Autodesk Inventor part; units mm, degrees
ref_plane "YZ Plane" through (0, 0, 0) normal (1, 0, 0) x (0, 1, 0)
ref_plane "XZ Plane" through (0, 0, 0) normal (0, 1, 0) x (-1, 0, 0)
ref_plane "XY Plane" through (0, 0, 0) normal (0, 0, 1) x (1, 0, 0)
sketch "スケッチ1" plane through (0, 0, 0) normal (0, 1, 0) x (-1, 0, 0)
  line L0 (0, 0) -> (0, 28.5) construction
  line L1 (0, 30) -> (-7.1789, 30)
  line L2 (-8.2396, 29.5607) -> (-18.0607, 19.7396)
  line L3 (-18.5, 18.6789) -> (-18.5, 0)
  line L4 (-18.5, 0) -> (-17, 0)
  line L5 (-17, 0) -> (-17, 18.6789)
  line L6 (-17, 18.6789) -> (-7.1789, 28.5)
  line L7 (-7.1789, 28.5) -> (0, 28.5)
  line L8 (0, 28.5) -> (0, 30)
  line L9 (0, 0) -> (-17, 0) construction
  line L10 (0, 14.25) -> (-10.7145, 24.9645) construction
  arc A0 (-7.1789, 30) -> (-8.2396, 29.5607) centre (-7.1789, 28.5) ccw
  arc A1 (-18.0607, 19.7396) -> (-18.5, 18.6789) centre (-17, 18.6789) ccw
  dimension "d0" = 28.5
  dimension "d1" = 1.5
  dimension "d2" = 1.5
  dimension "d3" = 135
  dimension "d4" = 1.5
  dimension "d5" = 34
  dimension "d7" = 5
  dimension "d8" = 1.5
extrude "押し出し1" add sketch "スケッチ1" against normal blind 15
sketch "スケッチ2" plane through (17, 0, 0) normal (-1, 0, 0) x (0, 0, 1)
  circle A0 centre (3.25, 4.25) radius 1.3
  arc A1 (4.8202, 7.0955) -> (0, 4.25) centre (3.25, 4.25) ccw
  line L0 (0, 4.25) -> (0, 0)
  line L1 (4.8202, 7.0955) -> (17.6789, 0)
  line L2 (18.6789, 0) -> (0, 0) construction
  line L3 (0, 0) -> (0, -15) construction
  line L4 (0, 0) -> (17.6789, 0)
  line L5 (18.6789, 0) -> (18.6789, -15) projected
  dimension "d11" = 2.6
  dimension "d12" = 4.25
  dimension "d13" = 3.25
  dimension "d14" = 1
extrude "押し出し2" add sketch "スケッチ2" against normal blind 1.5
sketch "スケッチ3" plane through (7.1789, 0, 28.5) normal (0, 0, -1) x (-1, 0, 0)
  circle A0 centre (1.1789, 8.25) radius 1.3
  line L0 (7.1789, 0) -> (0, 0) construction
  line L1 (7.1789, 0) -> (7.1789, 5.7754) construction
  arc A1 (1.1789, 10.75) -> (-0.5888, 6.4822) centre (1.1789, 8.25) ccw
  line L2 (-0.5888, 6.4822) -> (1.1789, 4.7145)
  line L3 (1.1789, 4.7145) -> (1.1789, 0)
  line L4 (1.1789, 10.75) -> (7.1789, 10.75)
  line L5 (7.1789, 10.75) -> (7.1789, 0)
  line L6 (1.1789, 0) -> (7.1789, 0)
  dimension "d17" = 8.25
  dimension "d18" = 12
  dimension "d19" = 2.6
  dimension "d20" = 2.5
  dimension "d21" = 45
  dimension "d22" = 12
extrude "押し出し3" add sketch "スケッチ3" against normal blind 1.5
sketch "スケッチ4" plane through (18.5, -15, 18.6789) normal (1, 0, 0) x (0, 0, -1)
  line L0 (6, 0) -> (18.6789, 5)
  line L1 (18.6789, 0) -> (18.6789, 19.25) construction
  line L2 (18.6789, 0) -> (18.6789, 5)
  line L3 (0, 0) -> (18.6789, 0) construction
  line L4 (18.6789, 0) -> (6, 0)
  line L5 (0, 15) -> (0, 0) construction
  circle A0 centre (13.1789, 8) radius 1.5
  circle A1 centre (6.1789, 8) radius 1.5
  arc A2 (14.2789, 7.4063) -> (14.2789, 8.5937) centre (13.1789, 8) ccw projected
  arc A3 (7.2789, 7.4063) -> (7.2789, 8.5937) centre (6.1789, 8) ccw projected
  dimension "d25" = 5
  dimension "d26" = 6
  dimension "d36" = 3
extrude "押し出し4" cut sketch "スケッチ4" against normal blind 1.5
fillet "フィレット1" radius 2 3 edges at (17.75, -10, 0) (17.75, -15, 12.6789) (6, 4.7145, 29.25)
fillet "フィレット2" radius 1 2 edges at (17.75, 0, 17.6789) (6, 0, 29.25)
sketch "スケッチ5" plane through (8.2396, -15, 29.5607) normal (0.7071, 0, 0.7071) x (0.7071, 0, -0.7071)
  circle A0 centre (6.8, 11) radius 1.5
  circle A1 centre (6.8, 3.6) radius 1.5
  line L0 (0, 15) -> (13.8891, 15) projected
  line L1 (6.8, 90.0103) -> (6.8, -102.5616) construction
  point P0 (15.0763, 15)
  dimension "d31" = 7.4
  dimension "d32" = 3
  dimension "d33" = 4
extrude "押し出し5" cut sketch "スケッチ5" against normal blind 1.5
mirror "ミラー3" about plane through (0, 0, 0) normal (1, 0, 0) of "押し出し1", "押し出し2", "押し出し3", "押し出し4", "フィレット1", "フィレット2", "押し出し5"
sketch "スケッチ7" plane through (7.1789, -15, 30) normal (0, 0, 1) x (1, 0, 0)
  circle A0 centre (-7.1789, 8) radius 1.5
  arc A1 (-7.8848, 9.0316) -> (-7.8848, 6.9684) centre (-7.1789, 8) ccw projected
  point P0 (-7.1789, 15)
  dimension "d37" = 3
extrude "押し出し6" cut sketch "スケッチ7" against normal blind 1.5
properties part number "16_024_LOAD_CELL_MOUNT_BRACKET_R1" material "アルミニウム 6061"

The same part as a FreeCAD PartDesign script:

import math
import FreeCAD as App
import Part
import Sketcher
Q = App.Units.Quantity


def edges_at(feature, points):
    """Names of the edges that pass closest to the given points."""
    edges = feature.Shape.Edges
    near = lambda p: min(range(len(edges)), key=lambda i: edges[i].distToShape(Part.Vertex(*p))[0])
    return sorted({f"Edge{near(p) + 1}" for p in points})


def add_polygon(sketch, points):
    """Adds a closed chain of lines whose ends are joined by coincident constraints."""
    first, n = sketch.GeometryCount, len(points)
    for a, b in zip(points, points[1:] + points[:1]):
        sketch.addGeometry(Part.LineSegment(App.Vector(*a, 0), App.Vector(*b, 0)), False)
    for i in range(n):
        sketch.addConstraint(Sketcher.Constraint("Coincident", first + i, 2, first + (i + 1) % n, 1))

doc = App.newDocument("Part")
params = doc.addObject("Spreadsheet::Sheet", "Params")
for row, (alias, value) in enumerate([
    ("sketch1_radius", "1.5 mm"),
    ("pad1_length", "15 mm"),
    ("sketch2_diameter", "2.6 mm"),
    ("sketch2_radius", "3.25 mm"),
    ("sketch2_width", "4.25 mm"),
    ("pad2_length", "1.5 mm"),
    ("sketch3_diameter", "2.6 mm"),
    ("sketch3_radius", "2.5 mm"),
    ("sketch3_length", "2.5 mm"),
    ("sketch3_width", "6 mm"),
    ("pad3_length", "1.5 mm"),
    ("sketch4_diameter", "3 mm"),
    ("sketch4_width", "5 mm"),
    ("pocket1_length", "1.5 mm"),
    ("fillet_radius", "2 mm"),
    ("fillet2_radius", "1 mm"),
    ("sketch5_diameter", "3 mm"),
    ("pocket2_length", "1.5 mm"),
    ("sketch6_diameter", "3 mm"),
    ("pocket3_length", "1.5 mm"),
], start=1):
    params.set(f"A{row}", alias)
    params.set(f"B{row}", "=" + value)
    params.setAlias(f"B{row}", alias)

body = doc.addObject("PartDesign::Body", "Body")

sketch1 = body.newObject("Sketcher::SketchObject", "Sketch")
sketch1.AttachmentSupport = (doc.getObject("XZ_Plane"), [""])
sketch1.MapMode = "FlatFace"
sketch1.addGeometry(Part.LineSegment(App.Vector(0, 28.5, 0), App.Vector(0, 30, 0)), False)
sketch1.addGeometry(Part.LineSegment(App.Vector(0, 30, 0), App.Vector(7.1789, 30, 0)), False)
sketch1.addGeometry(Part.ArcOfCircle(Part.Circle(App.Vector(7.1789, 28.5, 0), App.Vector(0, 0, 1), 1.5), math.radians(45), math.radians(90)), False)
sketch1.addGeometry(Part.LineSegment(App.Vector(8.2396, 29.5607, 0), App.Vector(18.0607, 19.7396, 0)), False)
sketch1.addGeometry(Part.ArcOfCircle(Part.Circle(App.Vector(17, 18.6789, 0), App.Vector(0, 0, 1), 1.500056), math.radians(0), math.radians(45)), False)
sketch1.addGeometry(Part.LineSegment(App.Vector(18.5, 18.6789, 0), App.Vector(18.5, 0, 0)), False)
sketch1.addGeometry(Part.LineSegment(App.Vector(18.5, 0, 0), App.Vector(17, 0, 0)), False)
sketch1.addGeometry(Part.LineSegment(App.Vector(17, 0, 0), App.Vector(17, 18.6789, 0)), False)
sketch1.addGeometry(Part.LineSegment(App.Vector(17, 18.6789, 0), App.Vector(7.1789, 28.5, 0)), False)
sketch1.addGeometry(Part.LineSegment(App.Vector(7.1789, 28.5, 0), App.Vector(0, 28.5, 0)), False)
sketch1.addConstraint(Sketcher.Constraint("Coincident", 0, 2, 1, 1))
sketch1.addConstraint(Sketcher.Constraint("Tangent", 1, 2, 2, 2))
sketch1.addConstraint(Sketcher.Constraint("Tangent", 2, 1, 3, 1))
sketch1.addConstraint(Sketcher.Constraint("Tangent", 3, 2, 4, 2))
sketch1.addConstraint(Sketcher.Constraint("Tangent", 4, 1, 5, 1))
sketch1.addConstraint(Sketcher.Constraint("Coincident", 5, 2, 6, 1))
sketch1.addConstraint(Sketcher.Constraint("Coincident", 6, 2, 7, 1))
sketch1.addConstraint(Sketcher.Constraint("Coincident", 7, 2, 8, 1))
sketch1.addConstraint(Sketcher.Constraint("Coincident", 8, 2, 9, 1))
sketch1.addConstraint(Sketcher.Constraint("Coincident", 9, 2, 0, 1))
sketch1.addConstraint(Sketcher.Constraint("Vertical", 0))
sketch1.addConstraint(Sketcher.Constraint("Horizontal", 1))
sketch1.addConstraint(Sketcher.Constraint("Vertical", 5))
sketch1.addConstraint(Sketcher.Constraint("Horizontal", 6))
sketch1.addConstraint(Sketcher.Constraint("Vertical", 7))
sketch1.addConstraint(Sketcher.Constraint("Horizontal", 9))
sketch1.addConstraint(Sketcher.Constraint("Coincident", 7, 2, 4, 3))
sketch1.addConstraint(Sketcher.Constraint("Coincident", 8, 2, 2, 3))
sketch1.addConstraint(Sketcher.Constraint("Equal", 2, 4))
sketch1.addConstraint(Sketcher.Constraint("PointOnObject", 0, 2, -2))
sketch1.addConstraint(Sketcher.Constraint("PointOnObject", 5, 2, -1))
sketch1.addConstraint(Sketcher.Constraint("Radius", 2, 1.5))
sketch1.addConstraint(Sketcher.Constraint("Angle", 8, Q("135 deg")))
sketch1.addConstraint(Sketcher.Constraint("DistanceY", -1, 1, 2, 3, 28.5))
sketch1.addConstraint(Sketcher.Constraint("DistanceX", -1, 1, 4, 3, 17.0))
sketch1.addConstraint(Sketcher.Constraint("DistanceX", 1, 1, 1, 2, 7.179))
sketch1.setExpression("Constraints[21]", "Params.sketch1_radius")
pad1 = body.newObject("PartDesign::Pad", "Pad")
pad1.Profile = sketch1
pad1.setExpression("Length", "Params.pad1_length")

sketch2 = body.newObject("Sketcher::SketchObject", "Sketch001")
sketch2.AttachmentSupport = (doc.getObject("YZ_Plane"), [""])
sketch2.MapMode = "FlatFace"
sketch2.AttachmentOffset = App.Placement(App.Vector(0, 0, 17), App.Rotation())
sketch2.addGeometry(Part.LineSegment(App.Vector(0, 17.6789, 0), App.Vector(7.0955, 4.8202, 0)), False)
sketch2.addGeometry(Part.ArcOfCircle(Part.Circle(App.Vector(4.25, 3.25, 0), App.Vector(0, 0, 1), 3.249984), math.radians(-90), math.radians(28.890734)), False)
sketch2.addGeometry(Part.LineSegment(App.Vector(4.25, 0, 0), App.Vector(0, 0, 0)), False)
sketch2.addGeometry(Part.LineSegment(App.Vector(0, 0, 0), App.Vector(0, 17.6789, 0)), False)
sketch2.addGeometry(Part.Circle(App.Vector(4.25, 3.25, 0), App.Vector(0, 0, 1), 1.3), False)
sketch2.addConstraint(Sketcher.Constraint("Tangent", 0, 2, 1, 2))
sketch2.addConstraint(Sketcher.Constraint("Tangent", 1, 1, 2, 1))
sketch2.addConstraint(Sketcher.Constraint("Coincident", 2, 2, 3, 1))
sketch2.addConstraint(Sketcher.Constraint("Coincident", 3, 2, 0, 1))
sketch2.addConstraint(Sketcher.Constraint("Horizontal", 2))
sketch2.addConstraint(Sketcher.Constraint("Vertical", 3))
sketch2.addConstraint(Sketcher.Constraint("Coincident", 2, 2, -1, 1))
sketch2.addConstraint(Sketcher.Constraint("Coincident", 4, 3, 1, 3))
sketch2.addConstraint(Sketcher.Constraint("Diameter", 4, 2.6))
sketch2.addConstraint(Sketcher.Constraint("Radius", 1, 3.25))
sketch2.addConstraint(Sketcher.Constraint("DistanceX", 2, 2, 2, 1, 4.25))
sketch2.addConstraint(Sketcher.Constraint("Angle", 0, Q("-61.1098 deg")))
sketch2.setExpression("Constraints[8]", "Params.sketch2_diameter")
sketch2.setExpression("Constraints[9]", "Params.sketch2_radius")
sketch2.setExpression("Constraints[10]", "Params.sketch2_width")
pad2 = body.newObject("PartDesign::Pad", "Pad001")
pad2.Profile = sketch2
pad2.setExpression("Length", "Params.pad2_length")

sketch3 = body.newObject("Sketcher::SketchObject", "Sketch002")
sketch3.AttachmentSupport = (doc.getObject("XY_Plane"), [""])
sketch3.MapMode = "FlatFace"
sketch3.AttachmentOffset = App.Placement(App.Vector(0, 0, 28.5), App.Rotation())
sketch3.addGeometry(Part.LineSegment(App.Vector(0, 10.75, 0), App.Vector(6, 10.75, 0)), False)
sketch3.addGeometry(Part.ArcOfCircle(Part.Circle(App.Vector(6, 8.25, 0), App.Vector(0, 0, 1), 2.5), math.radians(-45.001621), math.radians(90)), False)
sketch3.addGeometry(Part.LineSegment(App.Vector(7.7677, 6.4822, 0), App.Vector(6, 4.7145, 0)), False)
sketch3.addGeometry(Part.LineSegment(App.Vector(6, 4.7145, 0), App.Vector(6, 0, 0)), False)
sketch3.addGeometry(Part.LineSegment(App.Vector(6, 0, 0), App.Vector(0, 0, 0)), False)
sketch3.addGeometry(Part.LineSegment(App.Vector(0, 0, 0), App.Vector(0, 10.75, 0)), False)
sketch3.addGeometry(Part.Circle(App.Vector(6, 8.25, 0), App.Vector(0, 0, 1), 1.3), False)
sketch3.addConstraint(Sketcher.Constraint("Tangent", 0, 2, 1, 2))
sketch3.addConstraint(Sketcher.Constraint("Tangent", 1, 1, 2, 1))
sketch3.addConstraint(Sketcher.Constraint("Coincident", 2, 2, 3, 1))
sketch3.addConstraint(Sketcher.Constraint("Coincident", 3, 2, 4, 1))
sketch3.addConstraint(Sketcher.Constraint("Coincident", 4, 2, 5, 1))
sketch3.addConstraint(Sketcher.Constraint("Coincident", 5, 2, 0, 1))
sketch3.addConstraint(Sketcher.Constraint("Horizontal", 0))
sketch3.addConstraint(Sketcher.Constraint("Vertical", 3))
sketch3.addConstraint(Sketcher.Constraint("Horizontal", 4))
sketch3.addConstraint(Sketcher.Constraint("Vertical", 5))
sketch3.addConstraint(Sketcher.Constraint("Coincident", 4, 2, -1, 1))
sketch3.addConstraint(Sketcher.Constraint("Coincident", 6, 3, 1, 3))
sketch3.addConstraint(Sketcher.Constraint("Vertical", 0, 2, 2, 2))
sketch3.addConstraint(Sketcher.Constraint("Diameter", 6, 2.6))
sketch3.addConstraint(Sketcher.Constraint("Radius", 1, 2.5))
sketch3.addConstraint(Sketcher.Constraint("Distance", 2, 2.5))
sketch3.addConstraint(Sketcher.Constraint("DistanceX", 0, 1, 0, 2, 6.0))
sketch3.addConstraint(Sketcher.Constraint("DistanceY", -1, 1, 1, 3, 8.25))
sketch3.setExpression("Constraints[13]", "Params.sketch3_diameter")
sketch3.setExpression("Constraints[14]", "Params.sketch3_radius")
sketch3.setExpression("Constraints[15]", "Params.sketch3_length")
sketch3.setExpression("Constraints[16]", "Params.sketch3_width")
pad3 = body.newObject("PartDesign::Pad", "Pad002")
pad3.Profile = sketch3
pad3.setExpression("Length", "Params.pad3_length")

sketch4 = body.newObject("Sketcher::SketchObject", "Sketch003")
sketch4.AttachmentSupport = (doc.getObject("YZ_Plane"), [""])
sketch4.MapMode = "FlatFace"
sketch4.AttachmentOffset = App.Placement(App.Vector(0, 0, 18.5), App.Rotation())
add_polygon(sketch4, [(-10, 0), (-15, 12.6789), (-15, 0)])
sketch4.addGeometry(Part.Circle(App.Vector(-7, 5.5, 0), App.Vector(0, 0, 1), 1.5), False)
sketch4.addGeometry(Part.Circle(App.Vector(-7, 12.5, 0), App.Vector(0, 0, 1), 1.5), False)
sketch4.addConstraint(Sketcher.Constraint("Vertical", 1))
sketch4.addConstraint(Sketcher.Constraint("Horizontal", 2))
sketch4.addConstraint(Sketcher.Constraint("Equal", 3, 4))
sketch4.addConstraint(Sketcher.Constraint("PointOnObject", 1, 2, -1))
sketch4.addConstraint(Sketcher.Constraint("Vertical", 3, 3, 4, 3))
sketch4.addConstraint(Sketcher.Constraint("Diameter", 3, 3.0))
sketch4.addConstraint(Sketcher.Constraint("DistanceX", 2, 1, 2, 2, 5.0))
sketch4.addConstraint(Sketcher.Constraint("DistanceX", 2, 2, 3, 3, 3.0))
sketch4.addConstraint(Sketcher.Constraint("DistanceX", 3, 3, -1, 1, 7.0))
sketch4.addConstraint(Sketcher.Constraint("DistanceY", 3, 3, 4, 3, 7.0))
sketch4.addConstraint(Sketcher.Constraint("DistanceY", -1, 1, 3, 3, 5.5))
sketch4.addConstraint(Sketcher.Constraint("DistanceY", 1, 2, 1, 1, 12.679))
sketch4.setExpression("Constraints[8]", "Params.sketch4_diameter")
sketch4.setExpression("Constraints[9]", "Params.sketch4_width")
pocket1 = body.newObject("PartDesign::Pocket", "Pocket")
pocket1.Profile = sketch4
pocket1.setExpression("Length", "Params.pocket1_length")
doc.recompute()

fillet = body.newObject("PartDesign::Fillet", "Fillet")
fillet.Base = (pocket1, edges_at(pocket1, [(17.75, -10, 0), (17.75, -15, 12.679), (6, 4.715, 29.25)]))
fillet.setExpression("Radius", "Params.fillet_radius")
doc.recompute()

fillet2 = body.newObject("PartDesign::Fillet", "Fillet001")
fillet2.Base = (fillet, edges_at(fillet, [(17.75, 0, 17.679), (6, 0, 29.25)]))
fillet2.setExpression("Radius", "Params.fillet2_radius")

sketch5 = body.newObject("Sketcher::SketchObject", "Sketch004")
sketch5.Placement = App.Placement(App.Vector(8.2396, -15, 29.5607), App.Rotation(App.Vector(0.707106781, 0, -0.707106781), App.Vector(0, 0.999999999, 0), App.Vector(0.707106781, 0, 0.707106781), "ZXY"))
sketch5.addGeometry(Part.Circle(App.Vector(6.8, 11, 0), App.Vector(0, 0, 1), 1.5), False)
sketch5.addGeometry(Part.Circle(App.Vector(6.8, 3.6, 0), App.Vector(0, 0, 1), 1.5), False)
sketch5.addConstraint(Sketcher.Constraint("Equal", 0, 1))
sketch5.addConstraint(Sketcher.Constraint("Vertical", 0, 3, 1, 3))
sketch5.addConstraint(Sketcher.Constraint("Diameter", 0, 3.0))
sketch5.addConstraint(Sketcher.Constraint("DistanceY", 1, 3, 0, 3, 7.4))
sketch5.addConstraint(Sketcher.Constraint("DistanceY", -1, 1, 0, 3, 11.0))
sketch5.addConstraint(Sketcher.Constraint("DistanceX", -1, 1, 0, 3, 6.8))
sketch5.setExpression("Constraints[2]", "Params.sketch5_diameter")
pocket2 = body.newObject("PartDesign::Pocket", "Pocket001")
pocket2.Profile = sketch5
pocket2.setExpression("Length", "Params.pocket2_length")
doc.recompute()

mirrored = body.newObject("PartDesign::Mirrored", "Mirrored")
mirrored.Originals = [pad1, pad2, pad3, pocket1, fillet, fillet2, pocket2]
mirrored.MirrorPlane = (doc.getObject("YZ_Plane"), [""])
body.Tip = mirrored

sketch6 = body.newObject("Sketcher::SketchObject", "Sketch005")
sketch6.AttachmentSupport = (doc.getObject("XY_Plane"), [""])
sketch6.MapMode = "FlatFace"
sketch6.AttachmentOffset = App.Placement(App.Vector(0, 0, 30), App.Rotation())
sketch6.addGeometry(Part.Circle(App.Vector(0, -7, 0), App.Vector(0, 0, 1), 1.5), False)
sketch6.addConstraint(Sketcher.Constraint("PointOnObject", 0, 3, -2))
sketch6.addConstraint(Sketcher.Constraint("Diameter", 0, 3.0))
sketch6.addConstraint(Sketcher.Constraint("DistanceY", 0, 3, -1, 1, 7.0))
sketch6.setExpression("Constraints[1]", "Params.sketch6_diameter")
pocket3 = body.newObject("PartDesign::Pocket", "Pocket002")
pocket3.Profile = sketch6
pocket3.setExpression("Length", "Params.pocket3_length")

doc.recompute()
